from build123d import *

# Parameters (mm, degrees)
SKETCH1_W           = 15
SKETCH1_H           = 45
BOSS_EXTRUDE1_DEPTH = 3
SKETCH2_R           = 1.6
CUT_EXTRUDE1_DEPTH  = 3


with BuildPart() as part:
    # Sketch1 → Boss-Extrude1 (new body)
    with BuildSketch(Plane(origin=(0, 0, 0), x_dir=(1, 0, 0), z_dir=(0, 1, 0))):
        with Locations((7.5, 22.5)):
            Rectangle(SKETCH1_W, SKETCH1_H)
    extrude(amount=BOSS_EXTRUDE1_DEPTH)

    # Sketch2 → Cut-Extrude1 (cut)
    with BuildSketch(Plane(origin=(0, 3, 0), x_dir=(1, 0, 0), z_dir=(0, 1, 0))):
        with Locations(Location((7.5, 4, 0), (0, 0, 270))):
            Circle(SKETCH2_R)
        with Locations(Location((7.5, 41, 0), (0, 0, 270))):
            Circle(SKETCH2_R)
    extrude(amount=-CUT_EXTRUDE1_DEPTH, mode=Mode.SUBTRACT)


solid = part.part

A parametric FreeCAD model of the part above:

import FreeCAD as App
import Part
import Sketcher

V = App.Vector
Q = App.Units.Quantity

doc = App.newDocument("Part")
body = doc.addObject("PartDesign::Body", "Body")

# Sketch on XZ plane
sketch1 = doc.addObject("Sketcher::SketchObject", "Sketch")
body.addObject(sketch1)
sketch1.AttachmentSupport = (doc.XZ_Plane, [""])
sketch1.MapMode = "FlatFace"
sketch1.addGeometry([
    Part.LineSegment(V(0, -45, 0), V(0, 0, 0)),
    Part.LineSegment(V(0, 0, 0), V(15, 0, 0)),
    Part.LineSegment(V(15, 0, 0), V(15, -45, 0)),
    Part.LineSegment(V(15, -45, 0), V(0, -45, 0)),
], False)
sketch1.addConstraint([
    Sketcher.Constraint("Coincident", 0, 2, 1, 1),
    Sketcher.Constraint("Coincident", 1, 2, 2, 1),
    Sketcher.Constraint("Coincident", 2, 2, 3, 1),
    Sketcher.Constraint("Coincident", 3, 2, 0, 1),
    Sketcher.Constraint("Vertical", 0),
    Sketcher.Constraint("Horizontal", 1),
    Sketcher.Constraint("Vertical", 2),
    Sketcher.Constraint("Horizontal", 3),
    Sketcher.Constraint("Coincident", 0, 2, -1, 1),
    Sketcher.Constraint("DistanceX", 1, 1, 1, 2, Q("15 mm")),
    Sketcher.Constraint("DistanceY", 0, 1, 0, 2, Q("45 mm")),
])
pad1 = doc.addObject("PartDesign::Pad", "Pad")
body.addObject(pad1)
pad1.Profile = sketch1
pad1.Length = 3
pad1.Reversed = True

# Sketch on XZ plane
sketch2 = doc.addObject("Sketcher::SketchObject", "Sketch001")
body.addObject(sketch2)
sketch2.AttachmentSupport = (doc.XZ_Plane, [""])
sketch2.MapMode = "FlatFace"
sketch2.AttachmentOffset = App.Placement(V(0, 0, -3), App.Rotation())
sketch2.addGeometry([
    Part.Circle(V(7.5, -4, 0), V(0, 0, 1), 1.6),
    Part.Circle(V(7.5, -41, 0), V(0, 0, 1), 1.6),
], False)
sketch2.addConstraint([
    Sketcher.Constraint("Equal", 0, 1),
    Sketcher.Constraint("Vertical", 0, 3, 1, 3),
    Sketcher.Constraint("Diameter", 0, Q("3.2 mm")),
    Sketcher.Constraint("DistanceY", 0, 3, -1, 1, Q("4 mm")),
    Sketcher.Constraint("DistanceY", 1, 3, -1, 1, Q("41 mm")),
    Sketcher.Constraint("DistanceX", -1, 1, 0, 3, Q("7.5 mm")),
])
pocket1 = doc.addObject("PartDesign::Pocket", "Pocket")
body.addObject(pocket1)
pocket1.Profile = sketch2
pocket1.Length = 3
pocket1.Reversed = True

doc.recompute()
